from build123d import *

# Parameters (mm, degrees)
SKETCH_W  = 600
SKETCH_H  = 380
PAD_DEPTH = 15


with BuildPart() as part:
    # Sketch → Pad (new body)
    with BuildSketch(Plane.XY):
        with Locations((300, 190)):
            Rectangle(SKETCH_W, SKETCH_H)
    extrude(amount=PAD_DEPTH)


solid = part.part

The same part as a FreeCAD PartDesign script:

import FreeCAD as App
import Part
import Sketcher


def add_polygon(sketch, points):
    """Adds a closed chain of lines whose ends are joined by coincident constraints."""
    first, n = sketch.GeometryCount, len(points)
    for a, b in zip(points, points[1:] + points[:1]):
        sketch.addGeometry(Part.LineSegment(App.Vector(*a, 0), App.Vector(*b, 0)), False)
    for i in range(n):
        sketch.addConstraint(Sketcher.Constraint("Coincident", first + i, 2, first + (i + 1) % n, 1))

doc = App.newDocument("Part")
params = doc.addObject("Spreadsheet::Sheet", "Params")
for row, (alias, value) in enumerate([
    ("sketch1_width", "600 mm"),
    ("sketch1_height", "380 mm"),
    ("pad1_length", "15 mm"),
], start=1):
    params.set(f"A{row}", alias)
    params.set(f"B{row}", "=" + value)
    params.setAlias(f"B{row}", alias)

body = doc.addObject("PartDesign::Body", "Body")

sketch1 = body.newObject("Sketcher::SketchObject", "Sketch")
sketch1.AttachmentSupport = (doc.getObject("XY_Plane"), [""])
sketch1.MapMode = "FlatFace"
add_polygon(sketch1, [(0, 380), (0, 0), (600, 0), (600, 380)])
sketch1.addConstraint([
    Sketcher.Constraint("Vertical", 0),
    Sketcher.Constraint("Horizontal", 1),
    Sketcher.Constraint("Vertical", 2),
    Sketcher.Constraint("Horizontal", 3),
    Sketcher.Constraint("Coincident", 0, 2, -1, 1),
    Sketcher.Constraint("DistanceX", 1, 1, 1, 2, 600.0),
    Sketcher.Constraint("DistanceY", 0, 2, 0, 1, 380.0),
])
sketch1.setExpression("Constraints[9]", "Params.sketch1_width")
sketch1.setExpression("Constraints[10]", "Params.sketch1_height")
pad1 = body.newObject("PartDesign::Pad", "Pad")
pad1.Profile = sketch1
pad1.setExpression("Length", "Params.pad1_length")

doc.recompute()
